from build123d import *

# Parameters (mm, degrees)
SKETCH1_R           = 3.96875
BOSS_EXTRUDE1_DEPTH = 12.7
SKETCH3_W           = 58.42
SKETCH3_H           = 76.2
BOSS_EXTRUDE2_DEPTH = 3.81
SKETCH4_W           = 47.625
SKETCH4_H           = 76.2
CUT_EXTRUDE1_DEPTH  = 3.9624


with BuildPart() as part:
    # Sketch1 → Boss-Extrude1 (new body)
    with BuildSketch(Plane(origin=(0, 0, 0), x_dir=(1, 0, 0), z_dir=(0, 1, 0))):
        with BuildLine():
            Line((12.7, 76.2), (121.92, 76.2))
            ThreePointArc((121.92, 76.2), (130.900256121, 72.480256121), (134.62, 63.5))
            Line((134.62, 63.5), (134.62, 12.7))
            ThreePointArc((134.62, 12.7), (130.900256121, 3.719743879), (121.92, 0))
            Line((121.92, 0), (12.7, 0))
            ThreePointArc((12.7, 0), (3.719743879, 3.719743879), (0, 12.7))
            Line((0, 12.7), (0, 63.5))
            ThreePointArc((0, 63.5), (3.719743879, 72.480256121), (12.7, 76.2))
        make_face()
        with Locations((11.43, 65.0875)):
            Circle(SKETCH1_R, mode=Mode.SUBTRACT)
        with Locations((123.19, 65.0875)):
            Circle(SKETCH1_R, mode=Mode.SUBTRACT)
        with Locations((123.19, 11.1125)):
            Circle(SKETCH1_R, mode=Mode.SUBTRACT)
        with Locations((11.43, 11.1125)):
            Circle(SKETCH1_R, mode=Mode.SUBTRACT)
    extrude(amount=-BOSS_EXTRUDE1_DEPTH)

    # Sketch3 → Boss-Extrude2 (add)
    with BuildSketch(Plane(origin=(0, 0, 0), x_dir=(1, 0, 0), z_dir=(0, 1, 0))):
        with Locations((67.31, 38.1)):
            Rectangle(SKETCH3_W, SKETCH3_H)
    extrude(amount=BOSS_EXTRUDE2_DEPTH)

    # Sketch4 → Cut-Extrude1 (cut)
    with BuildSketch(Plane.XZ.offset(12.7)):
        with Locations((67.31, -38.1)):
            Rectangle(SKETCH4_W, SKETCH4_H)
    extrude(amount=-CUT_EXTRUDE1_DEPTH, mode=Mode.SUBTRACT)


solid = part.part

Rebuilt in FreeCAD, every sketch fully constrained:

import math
import FreeCAD as App
import Part
import Sketcher

V = App.Vector
Q = App.Units.Quantity


def add_polygon(sketch, points):
    """Adds a closed chain of lines whose ends are joined by coincident constraints."""
    first, n = sketch.GeometryCount, len(points)
    for a, b in zip(points, points[1:] + points[:1]):
        sketch.addGeometry(Part.LineSegment(App.Vector(*a, 0), App.Vector(*b, 0)), False)
    for i in range(n):
        sketch.addConstraint(Sketcher.Constraint("Coincident", first + i, 2, first + (i + 1) % n, 1))

doc = App.newDocument("Part")
params = doc.addObject("Spreadsheet::Sheet", "Params")
for row, (alias, value) in enumerate([
    ("sketch1_radius", "0.5 in"),
    ("sketch1_height", "2 in"),
    ("sketch1_diameter", "0.3125 in"),
    ("sketch1_width", "4.3 in"),
    ("pad1_length", "0.5 in"),
    ("sketch2_height", "3 in"),
    ("sketch2_width", "2.3 in"),
    ("pad2_length", "0.15 in"),
    ("sketch3_height", "3 in"),
    ("sketch3_width", "1.875 in"),
    ("pocket1_length", "0.156 in"),
], start=1):
    params.set(f"A{row}", alias)
    params.set(f"B{row}", "=" + value)
    params.setAlias(f"B{row}", alias)

body = doc.addObject("PartDesign::Body", "Body")

# Sketch on XZ plane
sketch1 = body.newObject("Sketcher::SketchObject", "Sketch")
sketch1.AttachmentSupport = (doc.getObject("XZ_Plane"), [""])
sketch1.MapMode = "FlatFace"
sketch1.addGeometry([
    Part.LineSegment(V(121.9, -76.2, 0), V(12.7, -76.2, 0)),  # 0
    Part.ArcOfCircle(Part.Circle(V(12.7, -63.5, 0), V(0, 0, 1), 12.7), math.radians(180), math.radians(270)),  # 1
    Part.LineSegment(V(0, -63.5, 0), V(0, -12.7, 0)),  # 2
    Part.ArcOfCircle(Part.Circle(V(12.7, -12.7, 0), V(0, 0, 1), 12.7), math.radians(90), math.radians(180)),  # 3
    Part.LineSegment(V(12.7, 0, 0), V(121.9, 0, 0)),  # 4
    Part.ArcOfCircle(Part.Circle(V(121.9, -12.7, 0), V(0, 0, 1), 12.7), math.radians(0), math.radians(90)),  # 5
    Part.LineSegment(V(134.6, -12.7, 0), V(134.6, -63.5, 0)),  # 6
    Part.ArcOfCircle(Part.Circle(V(121.9, -63.5, 0), V(0, 0, 1), 12.7), math.radians(-90), math.radians(0)),  # 7
    Part.Circle(V(123.2, -11.1, 0), V(0, 0, 1), 4),  # 8
    Part.Circle(V(11.4, -11.1, 0), V(0, 0, 1), 4),  # 9
    Part.Circle(V(123.2, -65.1, 0), V(0, 0, 1), 4),  # 10
    Part.Circle(V(11.4, -65.1, 0), V(0, 0, 1), 4),  # 11
], False)
sketch1.addConstraint([
    Sketcher.Constraint("Tangent", 0, 2, 1, 2),
    Sketcher.Constraint("Tangent", 1, 1, 2, 1),
    Sketcher.Constraint("Tangent", 2, 2, 3, 2),
    Sketcher.Constraint("Tangent", 3, 1, 4, 1),
    Sketcher.Constraint("Tangent", 4, 2, 5, 2),
    Sketcher.Constraint("Tangent", 5, 1, 6, 1),
    Sketcher.Constraint("Tangent", 6, 2, 7, 2),
    Sketcher.Constraint("Tangent", 7, 1, 0, 1),
    Sketcher.Constraint("Horizontal", 0),
    Sketcher.Constraint("Vertical", 2),
    Sketcher.Constraint("Horizontal", 4),
    Sketcher.Constraint("Vertical", 6),
    Sketcher.Constraint("Equal", 1, 3),
    Sketcher.Constraint("Equal", 3, 5),
    Sketcher.Constraint("Equal", 5, 7),
    Sketcher.Constraint("Equal", 8, 9),
    Sketcher.Constraint("Equal", 9, 10),
    Sketcher.Constraint("Equal", 10, 11),
    Sketcher.Constraint("PointOnObject", 1, 1, -2),
    Sketcher.Constraint("PointOnObject", 3, 1, -1),
    Sketcher.Constraint("Horizontal", 8, 3, 9, 3),
    Sketcher.Constraint("Horizontal", 10, 3, 11, 3),
    Sketcher.Constraint("Vertical", 8, 3, 10, 3),
    Sketcher.Constraint("Vertical", 9, 3, 11, 3),
    Sketcher.Constraint("Radius", 1, Q("0.5 in")),
    Sketcher.Constraint("DistanceY", 2, 1, 2, 2, Q("2 in")),
    Sketcher.Constraint("Diameter", 8, Q("0.3125 in")),
    Sketcher.Constraint("DistanceX", 0, 2, 0, 1, Q("4.3 in")),
    Sketcher.Constraint("DistanceX", 9, 3, 8, 3, Q("4.4 in")),
    Sketcher.Constraint("DistanceX", -1, 1, 8, 3, Q("4.85 in")),
    Sketcher.Constraint("DistanceY", 8, 3, -1, 1, Q("0.4375 in")),
    Sketcher.Constraint("DistanceY", 10, 3, -1, 1, Q("2.5625 in")),
])
sketch1.setExpression("Constraints[24]", "Params.sketch1_radius")
sketch1.setExpression("Constraints[25]", "Params.sketch1_height")
sketch1.setExpression("Constraints[26]", "Params.sketch1_diameter")
sketch1.setExpression("Constraints[27]", "Params.sketch1_width")
pad1 = body.newObject("PartDesign::Pad", "Pad")
pad1.Profile = sketch1
pad1.setExpression("Length", "Params.pad1_length")

# Sketch on XZ plane
sketch2 = body.newObject("Sketcher::SketchObject", "Sketch001")
sketch2.AttachmentSupport = (doc.getObject("XZ_Plane"), [""])
sketch2.MapMode = "FlatFace"
add_polygon(sketch2, [(38, -76), (38, 0), (97, 0), (97, -76)])  # lines 0-3
sketch2.addConstraint([
    Sketcher.Constraint("Vertical", 0),
    Sketcher.Constraint("Horizontal", 1),
    Sketcher.Constraint("Vertical", 2),
    Sketcher.Constraint("Horizontal", 3),
    Sketcher.Constraint("PointOnObject", 0, 2, -1),
    Sketcher.Constraint("DistanceY", 0, 1, 0, 2, Q("3 in")),
    Sketcher.Constraint("DistanceX", 1, 1, 1, 2, Q("2.3 in")),
    Sketcher.Constraint("DistanceX", -1, 1, 0, 2, Q("1.5 in")),
])
sketch2.setExpression("Constraints[9]", "Params.sketch2_height")
sketch2.setExpression("Constraints[10]", "Params.sketch2_width")
pad2 = body.newObject("PartDesign::Pad", "Pad001")
pad2.Profile = sketch2
pad2.setExpression("Length", "Params.pad2_length")
pad2.Reversed = True

# Sketch on XZ plane
sketch3 = body.newObject("Sketcher::SketchObject", "Sketch002")
sketch3.AttachmentSupport = (doc.getObject("XZ_Plane"), [""])
sketch3.MapMode = "FlatFace"
sketch3.AttachmentOffset = App.Placement(V(0, 0, 0.5 * 25.4), App.Rotation())
add_polygon(sketch3, [(43, 0), (43, -76), (91, -76), (91, 0)])  # lines 0-3
sketch3.addConstraint([
    Sketcher.Constraint("Vertical", 0),
    Sketcher.Constraint("Horizontal", 1),
    Sketcher.Constraint("Vertical", 2),
    Sketcher.Constraint("Horizontal", 3),
    Sketcher.Constraint("PointOnObject", 2, 2, -1),
    Sketcher.Constraint("DistanceY", 0, 2, 0, 1, Q("3 in")),
    Sketcher.Constraint("DistanceX", 1, 1, 1, 2, Q("1.875 in")),
    Sketcher.Constraint("DistanceX", -1, 1, 0, 2, Q("1.7125 in")),
])
sketch3.setExpression("Constraints[9]", "Params.sketch3_height")
sketch3.setExpression("Constraints[10]", "Params.sketch3_width")
pocket1 = body.newObject("PartDesign::Pocket", "Pocket")
pocket1.Profile = sketch3
pocket1.setExpression("Length", "Params.pocket1_length")

doc.recompute()
